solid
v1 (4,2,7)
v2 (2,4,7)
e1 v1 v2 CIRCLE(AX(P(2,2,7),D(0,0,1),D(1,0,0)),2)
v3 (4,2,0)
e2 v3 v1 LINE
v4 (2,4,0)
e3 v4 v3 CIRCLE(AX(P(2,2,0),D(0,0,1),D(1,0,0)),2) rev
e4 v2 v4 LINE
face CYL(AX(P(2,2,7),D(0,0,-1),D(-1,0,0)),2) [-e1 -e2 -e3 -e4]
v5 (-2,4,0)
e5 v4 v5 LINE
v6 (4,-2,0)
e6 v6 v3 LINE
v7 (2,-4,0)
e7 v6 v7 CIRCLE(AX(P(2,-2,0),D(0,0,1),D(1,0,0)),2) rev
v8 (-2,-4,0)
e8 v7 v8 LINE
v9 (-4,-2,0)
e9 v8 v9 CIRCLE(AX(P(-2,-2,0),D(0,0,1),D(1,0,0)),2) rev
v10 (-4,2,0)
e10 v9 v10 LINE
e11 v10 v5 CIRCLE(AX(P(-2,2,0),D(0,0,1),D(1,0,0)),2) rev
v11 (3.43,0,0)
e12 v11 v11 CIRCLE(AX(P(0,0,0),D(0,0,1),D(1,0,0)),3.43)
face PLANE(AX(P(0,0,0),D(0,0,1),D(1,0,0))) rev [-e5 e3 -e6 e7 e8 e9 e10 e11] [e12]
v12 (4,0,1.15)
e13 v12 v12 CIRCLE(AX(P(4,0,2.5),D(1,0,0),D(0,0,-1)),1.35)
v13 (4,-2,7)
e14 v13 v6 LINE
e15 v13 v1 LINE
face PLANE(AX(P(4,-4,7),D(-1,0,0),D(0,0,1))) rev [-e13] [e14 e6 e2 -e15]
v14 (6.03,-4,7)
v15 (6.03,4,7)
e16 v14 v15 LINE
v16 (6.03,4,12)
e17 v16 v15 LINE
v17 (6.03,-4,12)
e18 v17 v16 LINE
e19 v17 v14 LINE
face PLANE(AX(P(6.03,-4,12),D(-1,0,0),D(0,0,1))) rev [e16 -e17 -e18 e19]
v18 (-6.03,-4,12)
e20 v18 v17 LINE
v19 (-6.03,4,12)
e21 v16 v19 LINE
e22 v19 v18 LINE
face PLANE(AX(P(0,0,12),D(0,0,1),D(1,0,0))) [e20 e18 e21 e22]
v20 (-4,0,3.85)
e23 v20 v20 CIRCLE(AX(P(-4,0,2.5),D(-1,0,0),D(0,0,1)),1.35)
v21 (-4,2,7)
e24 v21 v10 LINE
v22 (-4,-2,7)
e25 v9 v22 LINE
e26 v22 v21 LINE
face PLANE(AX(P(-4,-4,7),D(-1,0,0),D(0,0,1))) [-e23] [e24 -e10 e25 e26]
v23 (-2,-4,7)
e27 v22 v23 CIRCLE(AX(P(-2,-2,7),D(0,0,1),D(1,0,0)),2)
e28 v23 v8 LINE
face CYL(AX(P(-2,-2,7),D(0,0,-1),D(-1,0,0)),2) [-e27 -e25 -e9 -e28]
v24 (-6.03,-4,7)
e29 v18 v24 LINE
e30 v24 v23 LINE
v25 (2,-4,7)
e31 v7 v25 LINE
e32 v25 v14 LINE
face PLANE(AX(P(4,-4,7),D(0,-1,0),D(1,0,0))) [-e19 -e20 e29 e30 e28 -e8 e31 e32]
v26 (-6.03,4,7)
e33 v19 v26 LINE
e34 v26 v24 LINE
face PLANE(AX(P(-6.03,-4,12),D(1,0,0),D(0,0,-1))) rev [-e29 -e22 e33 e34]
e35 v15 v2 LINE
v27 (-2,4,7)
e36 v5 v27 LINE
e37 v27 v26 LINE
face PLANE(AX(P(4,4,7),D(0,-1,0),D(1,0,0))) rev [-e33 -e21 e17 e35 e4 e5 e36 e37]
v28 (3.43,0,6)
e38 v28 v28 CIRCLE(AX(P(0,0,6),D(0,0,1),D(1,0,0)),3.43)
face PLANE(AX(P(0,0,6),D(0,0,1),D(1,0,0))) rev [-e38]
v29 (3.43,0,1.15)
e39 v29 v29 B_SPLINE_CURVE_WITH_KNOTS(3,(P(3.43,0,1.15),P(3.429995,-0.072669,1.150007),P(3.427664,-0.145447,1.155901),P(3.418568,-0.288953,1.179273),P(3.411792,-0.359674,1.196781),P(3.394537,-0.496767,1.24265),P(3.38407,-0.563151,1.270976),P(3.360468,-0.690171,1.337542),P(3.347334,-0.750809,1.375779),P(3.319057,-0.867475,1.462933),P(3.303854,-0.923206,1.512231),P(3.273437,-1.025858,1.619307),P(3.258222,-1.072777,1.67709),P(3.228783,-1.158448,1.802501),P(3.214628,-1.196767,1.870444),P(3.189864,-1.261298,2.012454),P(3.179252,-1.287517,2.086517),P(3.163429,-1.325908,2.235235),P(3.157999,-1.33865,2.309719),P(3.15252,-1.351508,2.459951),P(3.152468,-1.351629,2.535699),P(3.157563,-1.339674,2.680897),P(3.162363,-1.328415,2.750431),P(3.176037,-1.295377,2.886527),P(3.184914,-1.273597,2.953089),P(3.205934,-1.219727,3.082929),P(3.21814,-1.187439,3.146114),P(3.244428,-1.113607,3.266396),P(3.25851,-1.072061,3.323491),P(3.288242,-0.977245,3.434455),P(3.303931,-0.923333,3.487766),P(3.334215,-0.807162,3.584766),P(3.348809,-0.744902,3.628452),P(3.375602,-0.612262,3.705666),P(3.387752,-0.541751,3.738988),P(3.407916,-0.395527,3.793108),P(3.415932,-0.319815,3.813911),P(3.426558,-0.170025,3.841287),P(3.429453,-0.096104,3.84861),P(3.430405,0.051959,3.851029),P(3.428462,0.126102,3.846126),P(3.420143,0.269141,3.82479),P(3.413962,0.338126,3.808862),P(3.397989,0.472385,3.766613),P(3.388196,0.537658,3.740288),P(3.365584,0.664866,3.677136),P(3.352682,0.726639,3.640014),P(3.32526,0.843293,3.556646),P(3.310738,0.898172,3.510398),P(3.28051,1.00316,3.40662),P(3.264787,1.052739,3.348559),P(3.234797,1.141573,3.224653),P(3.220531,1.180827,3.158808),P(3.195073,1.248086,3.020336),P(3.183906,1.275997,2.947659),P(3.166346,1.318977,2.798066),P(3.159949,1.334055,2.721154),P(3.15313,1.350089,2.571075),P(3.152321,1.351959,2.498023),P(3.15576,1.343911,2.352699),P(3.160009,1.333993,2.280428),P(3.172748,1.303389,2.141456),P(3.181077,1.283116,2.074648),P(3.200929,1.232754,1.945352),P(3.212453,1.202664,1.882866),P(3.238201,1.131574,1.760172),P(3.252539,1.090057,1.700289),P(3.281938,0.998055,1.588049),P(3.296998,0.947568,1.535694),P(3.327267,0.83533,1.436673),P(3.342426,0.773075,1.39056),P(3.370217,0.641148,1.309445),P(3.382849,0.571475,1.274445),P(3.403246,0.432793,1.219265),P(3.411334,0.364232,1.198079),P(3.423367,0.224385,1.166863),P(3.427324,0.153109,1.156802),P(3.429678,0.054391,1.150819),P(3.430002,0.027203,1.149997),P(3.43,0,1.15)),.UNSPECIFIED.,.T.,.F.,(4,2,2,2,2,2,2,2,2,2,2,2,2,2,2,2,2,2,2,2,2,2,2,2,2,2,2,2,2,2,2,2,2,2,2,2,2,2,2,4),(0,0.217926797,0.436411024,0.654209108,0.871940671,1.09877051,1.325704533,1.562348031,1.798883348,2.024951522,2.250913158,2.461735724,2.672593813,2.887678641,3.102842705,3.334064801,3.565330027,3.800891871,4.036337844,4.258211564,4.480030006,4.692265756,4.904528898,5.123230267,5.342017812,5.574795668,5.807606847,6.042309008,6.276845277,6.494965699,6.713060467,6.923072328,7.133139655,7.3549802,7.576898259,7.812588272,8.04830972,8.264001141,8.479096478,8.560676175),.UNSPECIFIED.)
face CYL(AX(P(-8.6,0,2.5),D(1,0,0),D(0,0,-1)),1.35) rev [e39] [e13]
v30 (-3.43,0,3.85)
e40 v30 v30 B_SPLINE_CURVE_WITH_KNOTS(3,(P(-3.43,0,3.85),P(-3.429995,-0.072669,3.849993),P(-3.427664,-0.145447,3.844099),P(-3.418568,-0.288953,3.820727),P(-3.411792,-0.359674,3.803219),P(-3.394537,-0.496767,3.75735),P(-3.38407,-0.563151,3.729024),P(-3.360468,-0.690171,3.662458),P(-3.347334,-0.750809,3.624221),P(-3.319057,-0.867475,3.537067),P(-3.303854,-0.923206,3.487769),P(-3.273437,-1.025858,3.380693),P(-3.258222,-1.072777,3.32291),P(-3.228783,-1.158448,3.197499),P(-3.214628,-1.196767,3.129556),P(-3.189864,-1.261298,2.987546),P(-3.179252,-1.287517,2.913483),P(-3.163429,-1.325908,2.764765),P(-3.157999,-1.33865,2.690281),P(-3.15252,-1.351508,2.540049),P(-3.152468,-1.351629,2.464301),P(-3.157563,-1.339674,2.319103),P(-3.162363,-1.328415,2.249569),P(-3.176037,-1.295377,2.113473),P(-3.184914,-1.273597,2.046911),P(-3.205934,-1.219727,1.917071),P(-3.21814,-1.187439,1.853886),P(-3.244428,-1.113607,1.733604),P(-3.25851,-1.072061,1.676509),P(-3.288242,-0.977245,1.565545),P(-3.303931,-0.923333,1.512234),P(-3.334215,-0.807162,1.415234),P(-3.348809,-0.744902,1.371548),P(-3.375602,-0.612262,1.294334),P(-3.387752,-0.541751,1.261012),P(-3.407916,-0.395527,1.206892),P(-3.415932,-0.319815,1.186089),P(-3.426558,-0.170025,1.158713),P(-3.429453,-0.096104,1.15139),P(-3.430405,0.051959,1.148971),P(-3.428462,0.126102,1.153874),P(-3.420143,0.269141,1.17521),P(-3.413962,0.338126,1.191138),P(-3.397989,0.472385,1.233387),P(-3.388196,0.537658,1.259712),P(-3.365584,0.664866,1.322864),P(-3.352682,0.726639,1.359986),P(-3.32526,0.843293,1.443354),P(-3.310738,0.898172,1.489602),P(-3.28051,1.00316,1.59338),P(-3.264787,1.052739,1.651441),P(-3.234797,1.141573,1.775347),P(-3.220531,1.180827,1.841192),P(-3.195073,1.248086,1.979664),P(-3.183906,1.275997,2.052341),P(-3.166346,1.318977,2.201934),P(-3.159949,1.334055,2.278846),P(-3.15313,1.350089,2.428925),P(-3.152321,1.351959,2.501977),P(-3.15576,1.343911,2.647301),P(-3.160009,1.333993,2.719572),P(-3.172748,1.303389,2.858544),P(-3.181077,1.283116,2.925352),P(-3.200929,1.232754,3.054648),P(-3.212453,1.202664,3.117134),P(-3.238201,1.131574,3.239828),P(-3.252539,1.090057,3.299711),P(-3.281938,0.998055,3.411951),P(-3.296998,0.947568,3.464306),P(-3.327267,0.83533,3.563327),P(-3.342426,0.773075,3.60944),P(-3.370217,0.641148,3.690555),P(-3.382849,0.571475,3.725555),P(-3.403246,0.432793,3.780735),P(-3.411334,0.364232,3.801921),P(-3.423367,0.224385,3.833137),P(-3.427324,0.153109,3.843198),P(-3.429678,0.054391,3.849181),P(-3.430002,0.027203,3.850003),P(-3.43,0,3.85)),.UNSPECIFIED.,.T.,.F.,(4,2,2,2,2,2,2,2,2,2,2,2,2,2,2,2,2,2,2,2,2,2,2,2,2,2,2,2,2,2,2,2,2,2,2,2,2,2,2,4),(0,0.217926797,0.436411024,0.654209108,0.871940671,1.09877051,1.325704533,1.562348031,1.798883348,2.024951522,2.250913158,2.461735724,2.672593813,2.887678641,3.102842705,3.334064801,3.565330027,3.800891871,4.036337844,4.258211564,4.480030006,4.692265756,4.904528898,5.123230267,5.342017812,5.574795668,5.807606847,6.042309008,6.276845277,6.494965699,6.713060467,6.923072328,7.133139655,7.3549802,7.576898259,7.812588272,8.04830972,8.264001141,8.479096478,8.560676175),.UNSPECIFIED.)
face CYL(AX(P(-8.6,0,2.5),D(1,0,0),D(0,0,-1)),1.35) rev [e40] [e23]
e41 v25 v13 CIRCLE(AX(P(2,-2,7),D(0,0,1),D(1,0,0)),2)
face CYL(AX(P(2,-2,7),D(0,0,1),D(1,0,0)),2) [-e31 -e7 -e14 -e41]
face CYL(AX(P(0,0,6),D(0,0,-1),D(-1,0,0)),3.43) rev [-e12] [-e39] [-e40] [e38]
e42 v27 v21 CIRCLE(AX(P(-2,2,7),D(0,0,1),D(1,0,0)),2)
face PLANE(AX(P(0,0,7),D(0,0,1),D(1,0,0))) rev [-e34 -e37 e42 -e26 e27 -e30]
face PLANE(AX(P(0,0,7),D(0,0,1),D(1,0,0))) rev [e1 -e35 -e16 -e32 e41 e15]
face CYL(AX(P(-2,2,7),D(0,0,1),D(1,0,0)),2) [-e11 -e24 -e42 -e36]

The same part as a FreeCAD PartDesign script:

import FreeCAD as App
import Part
import Sketcher


def edges_at(feature, points):
    """Names of the edges that pass closest to the given points."""
    edges = feature.Shape.Edges
    near = lambda p: min(range(len(edges)), key=lambda i: edges[i].distToShape(Part.Vertex(*p))[0])
    return sorted({f"Edge{near(p) + 1}" for p in points})


def add_polygon(sketch, points):
    """Adds a closed chain of lines whose ends are joined by coincident constraints."""
    first, n = sketch.GeometryCount, len(points)
    for a, b in zip(points, points[1:] + points[:1]):
        sketch.addGeometry(Part.LineSegment(App.Vector(*a, 0), App.Vector(*b, 0)), False)
    for i in range(n):
        sketch.addConstraint(Sketcher.Constraint("Coincident", first + i, 2, first + (i + 1) % n, 1))

doc = App.newDocument("Part")
body = doc.addObject("PartDesign::Body", "Body")

sketch1 = body.newObject("Sketcher::SketchObject", "Sketch")
sketch1.AttachmentSupport = (doc.getObject("XY_Plane"), [""])
sketch1.MapMode = "FlatFace"
add_polygon(sketch1, [(-4, 4), (-4, -4), (4, -4), (4, 4)])
sketch1.addConstraint([
    Sketcher.Constraint("Vertical", 0),
    Sketcher.Constraint("Horizontal", 1),
    Sketcher.Constraint("Vertical", 2),
    Sketcher.Constraint("Horizontal", 3),
    Sketcher.Constraint("Symmetric", 0, 2, 2, 2, -1, 1),
    Sketcher.Constraint("Equal", 3, 0),
    Sketcher.Constraint("DistanceX", 1, 1, 1, 2, 8.0),
])
pad1 = body.newObject("PartDesign::Pad", "Pad")
pad1.Profile = sketch1
pad1.Length = 7

sketch2 = body.newObject("Sketcher::SketchObject", "Sketch001")
sketch2.AttachmentSupport = (doc.getObject("XY_Plane"), [""])
sketch2.MapMode = "FlatFace"
add_polygon(sketch2, [(-6.33, 6.33), (-6.33, -6.33), (6.33, -6.33), (6.33, 6.33)])
add_polygon(sketch2, [(4, -4), (-4, -4), (-4, 4), (4, 4)])
sketch2.addGeometry(Part.Circle(App.Vector(0, 0, 0), App.Vector(0, 0, 1), 3.43), False)
sketch2.addConstraint([
    Sketcher.Constraint("Vertical", 0),
    Sketcher.Constraint("Horizontal", 1),
    Sketcher.Constraint("Vertical", 2),
    Sketcher.Constraint("Horizontal", 3),
    Sketcher.Constraint("Horizontal", 4),
    Sketcher.Constraint("Vertical", 5),
    Sketcher.Constraint("Horizontal", 6),
    Sketcher.Constraint("Vertical", 7),
    Sketcher.Constraint("Coincident", 8, 3, -1, 1),
    Sketcher.Constraint("Symmetric", 0, 2, 2, 2, -1, 1),
    Sketcher.Constraint("Symmetric", 4, 2, 6, 2, -1, 1),
    Sketcher.Constraint("Equal", 3, 0),
    Sketcher.Constraint("Equal", 6, 5),
    Sketcher.Constraint("Diameter", 8, 6.86),
    Sketcher.Constraint("DistanceX", 4, 2, 4, 1, 8.0),
    Sketcher.Constraint("DistanceX", 1, 1, 1, 2, 12.66),
])
pocket1 = body.newObject("PartDesign::Pocket", "Pocket")
pocket1.Profile = sketch2
pocket1.Length = 6
pocket1.Reversed = True

sketch3 = body.newObject("Sketcher::SketchObject", "Sketch002")
sketch3.AttachmentSupport = (doc.getObject("YZ_Plane"), [""])
sketch3.MapMode = "FlatFace"
sketch3.AttachmentOffset = App.Placement(App.Vector(0, 0, 4), App.Rotation())
sketch3.addGeometry(Part.Circle(App.Vector(0, 2.5, 0), App.Vector(0, 0, 1), 1.35), False)
sketch3.addConstraint([
    Sketcher.Constraint("PointOnObject", 0, 3, -2),
    Sketcher.Constraint("Diameter", 0, 2.7),
    Sketcher.Constraint("DistanceY", -1, 1, 0, 3, 2.5),
])
pocket2 = body.newObject("PartDesign::Pocket", "Pocket001")
pocket2.Profile = sketch3
pocket2.Length = 12.6

sketch4 = body.newObject("Sketcher::SketchObject", "Sketch003")
sketch4.AttachmentSupport = (doc.getObject("XY_Plane"), [""])
sketch4.MapMode = "FlatFace"
sketch4.AttachmentOffset = App.Placement(App.Vector(0, 0, 7), App.Rotation())
add_polygon(sketch4, [(-6.03, 4), (-6.03, -4), (6.03, -4), (6.03, 4)])
sketch4.addConstraint([
    Sketcher.Constraint("Vertical", 0),
    Sketcher.Constraint("Horizontal", 1),
    Sketcher.Constraint("Vertical", 2),
    Sketcher.Constraint("Horizontal", 3),
    Sketcher.Constraint("Symmetric", 0, 2, 2, 2, -1, 1),
    Sketcher.Constraint("DistanceY", 0, 2, 0, 1, 8.0),
    Sketcher.Constraint("DistanceX", 1, 1, 1, 2, 12.06),
])
pad2 = body.newObject("PartDesign::Pad", "Pad001")
pad2.Profile = sketch4
pad2.Length = 5
doc.recompute()

fillet = body.newObject("PartDesign::Fillet", "Fillet")
fillet.Base = (pad2, edges_at(pad2, [
    (-4, -4, 3.5),
    (4, -4, 3.5),
    (4, 4, 3.5),
    (-4, 4, 3.5),
]))
fillet.Radius = 2

doc.recompute()
